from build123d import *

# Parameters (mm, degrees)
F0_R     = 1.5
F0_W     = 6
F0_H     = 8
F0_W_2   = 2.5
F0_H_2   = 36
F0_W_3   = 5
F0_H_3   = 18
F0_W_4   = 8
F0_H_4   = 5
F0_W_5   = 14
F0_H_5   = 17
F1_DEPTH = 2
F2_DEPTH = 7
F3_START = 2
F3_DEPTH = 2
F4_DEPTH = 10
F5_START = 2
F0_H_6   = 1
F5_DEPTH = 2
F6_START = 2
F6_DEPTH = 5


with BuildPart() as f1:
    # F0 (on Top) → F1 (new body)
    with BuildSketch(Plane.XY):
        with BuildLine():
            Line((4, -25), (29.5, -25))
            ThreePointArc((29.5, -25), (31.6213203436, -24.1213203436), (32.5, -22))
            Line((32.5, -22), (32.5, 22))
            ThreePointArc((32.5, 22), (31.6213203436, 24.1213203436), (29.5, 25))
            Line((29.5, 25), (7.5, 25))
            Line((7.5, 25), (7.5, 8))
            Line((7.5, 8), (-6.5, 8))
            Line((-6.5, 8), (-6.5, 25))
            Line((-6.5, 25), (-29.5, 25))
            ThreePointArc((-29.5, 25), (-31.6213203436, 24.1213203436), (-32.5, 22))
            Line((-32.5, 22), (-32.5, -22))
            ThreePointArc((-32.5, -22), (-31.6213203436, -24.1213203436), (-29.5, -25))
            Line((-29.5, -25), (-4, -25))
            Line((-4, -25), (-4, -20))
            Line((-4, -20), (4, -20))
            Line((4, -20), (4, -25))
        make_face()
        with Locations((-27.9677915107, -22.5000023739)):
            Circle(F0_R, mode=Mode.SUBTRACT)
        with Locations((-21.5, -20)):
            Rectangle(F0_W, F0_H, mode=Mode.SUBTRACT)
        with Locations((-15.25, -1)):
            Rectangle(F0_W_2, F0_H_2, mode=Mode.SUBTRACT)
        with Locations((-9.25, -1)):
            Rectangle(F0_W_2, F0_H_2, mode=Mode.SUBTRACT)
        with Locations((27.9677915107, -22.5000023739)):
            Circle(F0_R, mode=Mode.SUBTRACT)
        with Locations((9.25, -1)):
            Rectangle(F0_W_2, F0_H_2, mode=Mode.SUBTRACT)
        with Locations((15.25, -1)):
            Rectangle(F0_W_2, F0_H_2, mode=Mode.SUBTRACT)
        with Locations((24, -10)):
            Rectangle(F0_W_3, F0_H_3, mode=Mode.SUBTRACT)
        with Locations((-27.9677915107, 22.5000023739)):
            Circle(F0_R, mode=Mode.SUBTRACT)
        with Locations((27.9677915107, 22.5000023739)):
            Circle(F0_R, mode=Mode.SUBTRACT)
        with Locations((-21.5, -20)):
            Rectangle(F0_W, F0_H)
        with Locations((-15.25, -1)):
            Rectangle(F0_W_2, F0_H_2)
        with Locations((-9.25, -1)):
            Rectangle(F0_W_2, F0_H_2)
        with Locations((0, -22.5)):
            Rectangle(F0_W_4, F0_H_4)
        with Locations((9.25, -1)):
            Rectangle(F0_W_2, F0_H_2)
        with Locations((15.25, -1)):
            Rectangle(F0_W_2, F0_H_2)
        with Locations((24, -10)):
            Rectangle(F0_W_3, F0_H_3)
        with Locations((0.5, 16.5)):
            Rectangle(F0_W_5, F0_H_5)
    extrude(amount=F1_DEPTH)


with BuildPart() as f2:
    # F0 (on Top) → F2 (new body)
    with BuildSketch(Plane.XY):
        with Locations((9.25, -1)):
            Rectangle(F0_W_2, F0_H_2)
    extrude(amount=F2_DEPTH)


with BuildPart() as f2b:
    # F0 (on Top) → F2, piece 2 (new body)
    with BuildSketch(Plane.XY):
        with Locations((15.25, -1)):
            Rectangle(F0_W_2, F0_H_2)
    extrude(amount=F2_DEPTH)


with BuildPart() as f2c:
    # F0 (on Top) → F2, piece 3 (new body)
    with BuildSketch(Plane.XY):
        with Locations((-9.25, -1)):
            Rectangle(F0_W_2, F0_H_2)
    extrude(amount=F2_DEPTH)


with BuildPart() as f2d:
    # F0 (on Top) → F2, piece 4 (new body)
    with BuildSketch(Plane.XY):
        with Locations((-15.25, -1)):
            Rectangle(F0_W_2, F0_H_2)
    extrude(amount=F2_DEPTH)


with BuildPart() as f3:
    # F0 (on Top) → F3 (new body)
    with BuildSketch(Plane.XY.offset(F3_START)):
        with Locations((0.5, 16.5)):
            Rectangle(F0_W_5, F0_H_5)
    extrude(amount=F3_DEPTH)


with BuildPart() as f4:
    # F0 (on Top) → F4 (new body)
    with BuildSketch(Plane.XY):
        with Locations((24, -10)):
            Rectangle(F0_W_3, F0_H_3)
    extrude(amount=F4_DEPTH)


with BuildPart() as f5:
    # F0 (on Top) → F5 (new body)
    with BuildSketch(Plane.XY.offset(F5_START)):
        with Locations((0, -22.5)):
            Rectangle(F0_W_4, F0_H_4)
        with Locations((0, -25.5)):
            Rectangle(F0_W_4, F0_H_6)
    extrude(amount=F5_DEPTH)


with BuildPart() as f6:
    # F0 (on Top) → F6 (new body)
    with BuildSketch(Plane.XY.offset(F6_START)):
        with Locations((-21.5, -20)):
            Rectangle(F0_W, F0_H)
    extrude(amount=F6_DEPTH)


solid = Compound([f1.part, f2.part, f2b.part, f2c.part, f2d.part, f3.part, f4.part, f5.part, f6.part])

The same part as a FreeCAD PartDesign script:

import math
import FreeCAD as App
import Part
import Sketcher
Q = App.Units.Quantity

doc = App.newDocument("Part")
body = doc.addObject("PartDesign::Body", "Body")

# Sketch on XY plane
sketch1 = body.newObject("Sketcher::SketchObject", "Sketch")
sketch1.AttachmentSupport = (doc.getObject("XY_Plane"), [""])
sketch1.MapMode = "FlatFace"
sketch1.addGeometry(Part.ArcOfCircle(Part.Circle(App.Vector(29.5, -22, 0), App.Vector(0, 0, 1), 3), math.radians(-90), math.radians(0)), False)
sketch1.addGeometry(Part.LineSegment(App.Vector(32.5, -22, 0), App.Vector(32.5, 22, 0)), False)
sketch1.addGeometry(Part.ArcOfCircle(Part.Circle(App.Vector(29.5, 22, 0), App.Vector(0, 0, 1), 3), math.radians(0), math.radians(90)), False)
sketch1.addGeometry(Part.LineSegment(App.Vector(29.5, 25, 0), App.Vector(-29.5, 25, 0)), False)
sketch1.addGeometry(Part.ArcOfCircle(Part.Circle(App.Vector(-29.5, 22, 0), App.Vector(0, 0, 1), 3), math.radians(90), math.radians(180)), False)
sketch1.addGeometry(Part.LineSegment(App.Vector(-32.5, 22, 0), App.Vector(-32.5, -22, 0)), False)
sketch1.addGeometry(Part.ArcOfCircle(Part.Circle(App.Vector(-29.5, -22, 0), App.Vector(0, 0, 1), 3), math.radians(180), math.radians(270)), False)
sketch1.addGeometry(Part.LineSegment(App.Vector(-29.5, -25, 0), App.Vector(29.5, -25, 0)), False)
sketch1.addGeometry(Part.Circle(App.Vector(-28, -22.5, 0), App.Vector(0, 0, 1), 1.5), False)
sketch1.addGeometry(Part.Circle(App.Vector(28, -22.5, 0), App.Vector(0, 0, 1), 1.5), False)
sketch1.addGeometry(Part.Circle(App.Vector(-28, 22.5, 0), App.Vector(0, 0, 1), 1.5), False)
sketch1.addGeometry(Part.Circle(App.Vector(28, 22.5, 0), App.Vector(0, 0, 1), 1.5), False)
sketch1.addConstraint(Sketcher.Constraint("Tangent", 0, 2, 1, 1))
sketch1.addConstraint(Sketcher.Constraint("Tangent", 1, 2, 2, 1))
sketch1.addConstraint(Sketcher.Constraint("Tangent", 2, 2, 3, 1))
sketch1.addConstraint(Sketcher.Constraint("Tangent", 3, 2, 4, 1))
sketch1.addConstraint(Sketcher.Constraint("Tangent", 4, 2, 5, 1))
sketch1.addConstraint(Sketcher.Constraint("Tangent", 5, 2, 6, 1))
sketch1.addConstraint(Sketcher.Constraint("Tangent", 6, 2, 7, 1))
sketch1.addConstraint(Sketcher.Constraint("Tangent", 7, 2, 0, 1))
sketch1.addConstraint(Sketcher.Constraint("Vertical", 1))
sketch1.addConstraint(Sketcher.Constraint("Horizontal", 3))
sketch1.addConstraint(Sketcher.Constraint("Vertical", 5))
sketch1.addConstraint(Sketcher.Constraint("Horizontal", 7))
sketch1.addConstraint(Sketcher.Constraint("Equal", 0, 2))
sketch1.addConstraint(Sketcher.Constraint("Equal", 2, 4))
sketch1.addConstraint(Sketcher.Constraint("Equal", 4, 6))
sketch1.addConstraint(Sketcher.Constraint("Equal", 8, 9))
sketch1.addConstraint(Sketcher.Constraint("Equal", 9, 10))
sketch1.addConstraint(Sketcher.Constraint("Equal", 10, 11))
sketch1.addConstraint(Sketcher.Constraint("Symmetric", 0, 3, 4, 3, -1, 1))
sketch1.addConstraint(Sketcher.Constraint("Symmetric", 9, 3, 10, 3, -1, 1))
sketch1.addConstraint(Sketcher.Constraint("Symmetric", 8, 3, 11, 3, -1, 1))
sketch1.addConstraint(Sketcher.Constraint("Symmetric", 8, 3, 9, 3, -2))
sketch1.addConstraint(Sketcher.Constraint("Diameter", 8, Q("3 mm")))
sketch1.addConstraint(Sketcher.Constraint("Radius", 0, Q("3 mm")))
sketch1.addConstraint(Sketcher.Constraint("DistanceX", 3, 2, 3, 1, Q("59 mm")))
sketch1.addConstraint(Sketcher.Constraint("DistanceY", 1, 1, 1, 2, Q("44 mm")))
sketch1.addConstraint(Sketcher.Constraint("DistanceX", 8, 3, -1, 1, Q("27.967792 mm")))
sketch1.addConstraint(Sketcher.Constraint("DistanceY", 8, 3, -1, 1, Q("22.500002 mm")))
pad1 = body.newObject("PartDesign::Pad", "Pad")
pad1.Profile = sketch1
pad1.Length = 2
body2 = doc.addObject("PartDesign::Body", "Body001")

# Sketch on XY plane
sketch2 = body2.newObject("Sketcher::SketchObject", "Sketch001")
sketch2.AttachmentSupport = (doc.getObject("XY_Plane001"), [""])
sketch2.MapMode = "FlatFace"
sketch2.addGeometry(Part.LineSegment(App.Vector(8, 17, 0), App.Vector(8, -19, 0)), False)
sketch2.addGeometry(Part.LineSegment(App.Vector(8, -19, 0), App.Vector(10.5, -19, 0)), False)
sketch2.addGeometry(Part.LineSegment(App.Vector(10.5, -19, 0), App.Vector(10.5, 17, 0)), False)
sketch2.addGeometry(Part.LineSegment(App.Vector(10.5, 17, 0), App.Vector(8, 17, 0)), False)
sketch2.addConstraint(Sketcher.Constraint("Coincident", 0, 2, 1, 1))
sketch2.addConstraint(Sketcher.Constraint("Coincident", 1, 2, 2, 1))
sketch2.addConstraint(Sketcher.Constraint("Coincident", 2, 2, 3, 1))
sketch2.addConstraint(Sketcher.Constraint("Coincident", 3, 2, 0, 1))
sketch2.addConstraint(Sketcher.Constraint("Vertical", 0))
sketch2.addConstraint(Sketcher.Constraint("Horizontal", 1))
sketch2.addConstraint(Sketcher.Constraint("Vertical", 2))
sketch2.addConstraint(Sketcher.Constraint("Horizontal", 3))
sketch2.addConstraint(Sketcher.Constraint("DistanceY", 0, 2, 0, 1, Q("36 mm")))
sketch2.addConstraint(Sketcher.Constraint("DistanceX", 1, 1, 1, 2, Q("2.5 mm")))
sketch2.addConstraint(Sketcher.Constraint("DistanceX", -1, 1, 0, 2, Q("8 mm")))
sketch2.addConstraint(Sketcher.Constraint("DistanceY", 0, 2, -1, 1, Q("19 mm")))
pad2 = body2.newObject("PartDesign::Pad", "Pad001")
pad2.Profile = sketch2
pad2.Length = 7
body3 = doc.addObject("PartDesign::Body", "Body002")

# Sketch on XY plane
sketch3 = body3.newObject("Sketcher::SketchObject", "Sketch002")
sketch3.AttachmentSupport = (doc.getObject("XY_Plane002"), [""])
sketch3.MapMode = "FlatFace"
sketch3.addGeometry(Part.LineSegment(App.Vector(14, 17, 0), App.Vector(14, -19, 0)), False)
sketch3.addGeometry(Part.LineSegment(App.Vector(14, -19, 0), App.Vector(16.5, -19, 0)), False)
sketch3.addGeometry(Part.LineSegment(App.Vector(16.5, -19, 0), App.Vector(16.5, 17, 0)), False)
sketch3.addGeometry(Part.LineSegment(App.Vector(16.5, 17, 0), App.Vector(14, 17, 0)), False)
sketch3.addConstraint(Sketcher.Constraint("Coincident", 0, 2, 1, 1))
sketch3.addConstraint(Sketcher.Constraint("Coincident", 1, 2, 2, 1))
sketch3.addConstraint(Sketcher.Constraint("Coincident", 2, 2, 3, 1))
sketch3.addConstraint(Sketcher.Constraint("Coincident", 3, 2, 0, 1))
sketch3.addConstraint(Sketcher.Constraint("Vertical", 0))
sketch3.addConstraint(Sketcher.Constraint("Horizontal", 1))
sketch3.addConstraint(Sketcher.Constraint("Vertical", 2))
sketch3.addConstraint(Sketcher.Constraint("Horizontal", 3))
sketch3.addConstraint(Sketcher.Constraint("DistanceY", 0, 2, 0, 1, Q("36 mm")))
sketch3.addConstraint(Sketcher.Constraint("DistanceX", 1, 1, 1, 2, Q("2.5 mm")))
sketch3.addConstraint(Sketcher.Constraint("DistanceX", -1, 1, 0, 2, Q("14 mm")))
sketch3.addConstraint(Sketcher.Constraint("DistanceY", 0, 2, -1, 1, Q("19 mm")))
pad3 = body3.newObject("PartDesign::Pad", "Pad002")
pad3.Profile = sketch3
pad3.Length = 7
body4 = doc.addObject("PartDesign::Body", "Body003")

# Sketch on XY plane
sketch4 = body4.newObject("Sketcher::SketchObject", "Sketch003")
sketch4.AttachmentSupport = (doc.getObject("XY_Plane003"), [""])
sketch4.MapMode = "FlatFace"
sketch4.addGeometry(Part.LineSegment(App.Vector(-10.5, 17, 0), App.Vector(-10.5, -19, 0)), False)
sketch4.addGeometry(Part.LineSegment(App.Vector(-10.5, -19, 0), App.Vector(-8, -19, 0)), False)
sketch4.addGeometry(Part.LineSegment(App.Vector(-8, -19, 0), App.Vector(-8, 17, 0)), False)
sketch4.addGeometry(Part.LineSegment(App.Vector(-8, 17, 0), App.Vector(-10.5, 17, 0)), False)
sketch4.addConstraint(Sketcher.Constraint("Coincident", 0, 2, 1, 1))
sketch4.addConstraint(Sketcher.Constraint("Coincident", 1, 2, 2, 1))
sketch4.addConstraint(Sketcher.Constraint("Coincident", 2, 2, 3, 1))
sketch4.addConstraint(Sketcher.Constraint("Coincident", 3, 2, 0, 1))
sketch4.addConstraint(Sketcher.Constraint("Vertical", 0))
sketch4.addConstraint(Sketcher.Constraint("Horizontal", 1))
sketch4.addConstraint(Sketcher.Constraint("Vertical", 2))
sketch4.addConstraint(Sketcher.Constraint("Horizontal", 3))
sketch4.addConstraint(Sketcher.Constraint("DistanceY", 0, 2, 0, 1, Q("36 mm")))
sketch4.addConstraint(Sketcher.Constraint("DistanceX", 1, 1, 1, 2, Q("2.5 mm")))
sketch4.addConstraint(Sketcher.Constraint("DistanceY", 0, 2, -1, 1, Q("19 mm")))
sketch4.addConstraint(Sketcher.Constraint("DistanceX", 1, 2, -1, 1, Q("8 mm")))
pad4 = body4.newObject("PartDesign::Pad", "Pad003")
pad4.Profile = sketch4
pad4.Length = 7
body5 = doc.addObject("PartDesign::Body", "Body004")

# Sketch on XY plane
sketch5 = body5.newObject("Sketcher::SketchObject", "Sketch004")
sketch5.AttachmentSupport = (doc.getObject("XY_Plane004"), [""])
sketch5.MapMode = "FlatFace"
sketch5.addGeometry(Part.LineSegment(App.Vector(-16.5, 17, 0), App.Vector(-16.5, -19, 0)), False)
sketch5.addGeometry(Part.LineSegment(App.Vector(-16.5, -19, 0), App.Vector(-14, -19, 0)), False)
sketch5.addGeometry(Part.LineSegment(App.Vector(-14, -19, 0), App.Vector(-14, 17, 0)), False)
sketch5.addGeometry(Part.LineSegment(App.Vector(-14, 17, 0), App.Vector(-16.5, 17, 0)), False)
sketch5.addConstraint(Sketcher.Constraint("Coincident", 0, 2, 1, 1))
sketch5.addConstraint(Sketcher.Constraint("Coincident", 1, 2, 2, 1))
sketch5.addConstraint(Sketcher.Constraint("Coincident", 2, 2, 3, 1))
sketch5.addConstraint(Sketcher.Constraint("Coincident", 3, 2, 0, 1))
sketch5.addConstraint(Sketcher.Constraint("Vertical", 0))
sketch5.addConstraint(Sketcher.Constraint("Horizontal", 1))
sketch5.addConstraint(Sketcher.Constraint("Vertical", 2))
sketch5.addConstraint(Sketcher.Constraint("Horizontal", 3))
sketch5.addConstraint(Sketcher.Constraint("DistanceY", 0, 2, 0, 1, Q("36 mm")))
sketch5.addConstraint(Sketcher.Constraint("DistanceX", 1, 1, 1, 2, Q("2.5 mm")))
sketch5.addConstraint(Sketcher.Constraint("DistanceY", 0, 2, -1, 1, Q("19 mm")))
sketch5.addConstraint(Sketcher.Constraint("DistanceX", 1, 2, -1, 1, Q("14 mm")))
pad5 = body5.newObject("PartDesign::Pad", "Pad004")
pad5.Profile = sketch5
pad5.Length = 7
body6 = doc.addObject("PartDesign::Body", "Body005")

# Sketch on XY plane
sketch6 = body6.newObject("Sketcher::SketchObject", "Sketch005")
sketch6.AttachmentSupport = (doc.getObject("XY_Plane005"), [""])
sketch6.MapMode = "FlatFace"
sketch6.AttachmentOffset = App.Placement(App.Vector(0, 0, 2), App.Rotation())
sketch6.addGeometry(Part.LineSegment(App.Vector(-6, 25, 0), App.Vector(-6, 8, 0)), False)
sketch6.addGeometry(Part.LineSegment(App.Vector(-6, 8, 0), App.Vector(8, 8, 0)), False)
sketch6.addGeometry(Part.LineSegment(App.Vector(8, 8, 0), App.Vector(8, 25, 0)), False)
sketch6.addGeometry(Part.LineSegment(App.Vector(8, 25, 0), App.Vector(-6, 25, 0)), False)
sketch6.addConstraint(Sketcher.Constraint("Coincident", 0, 2, 1, 1))
sketch6.addConstraint(Sketcher.Constraint("Coincident", 1, 2, 2, 1))
sketch6.addConstraint(Sketcher.Constraint("Coincident", 2, 2, 3, 1))
sketch6.addConstraint(Sketcher.Constraint("Coincident", 3, 2, 0, 1))
sketch6.addConstraint(Sketcher.Constraint("Vertical", 0))
sketch6.addConstraint(Sketcher.Constraint("Horizontal", 1))
sketch6.addConstraint(Sketcher.Constraint("Vertical", 2))
sketch6.addConstraint(Sketcher.Constraint("Horizontal", 3))
sketch6.addConstraint(Sketcher.Constraint("DistanceX", 1, 1, 1, 2, Q("14 mm")))
sketch6.addConstraint(Sketcher.Constraint("DistanceY", 0, 2, 0, 1, Q("17 mm")))
sketch6.addConstraint(Sketcher.Constraint("DistanceY", -1, 1, 0, 2, Q("8 mm")))
sketch6.addConstraint(Sketcher.Constraint("DistanceX", 0, 2, -1, 1, Q("6.5 mm")))
pad6 = body6.newObject("PartDesign::Pad", "Pad005")
pad6.Profile = sketch6
pad6.Length = 2
body7 = doc.addObject("PartDesign::Body", "Body006")

# Sketch on XY plane
sketch7 = body7.newObject("Sketcher::SketchObject", "Sketch006")
sketch7.AttachmentSupport = (doc.getObject("XY_Plane006"), [""])
sketch7.MapMode = "FlatFace"
sketch7.addGeometry(Part.LineSegment(App.Vector(22, -1, 0), App.Vector(22, -19, 0)), False)
sketch7.addGeometry(Part.LineSegment(App.Vector(22, -19, 0), App.Vector(26, -19, 0)), False)
sketch7.addGeometry(Part.LineSegment(App.Vector(26, -19, 0), App.Vector(26, -1, 0)), False)
sketch7.addGeometry(Part.LineSegment(App.Vector(26, -1, 0), App.Vector(22, -1, 0)), False)
sketch7.addConstraint(Sketcher.Constraint("Coincident", 0, 2, 1, 1))
sketch7.addConstraint(Sketcher.Constraint("Coincident", 1, 2, 2, 1))
sketch7.addConstraint(Sketcher.Constraint("Coincident", 2, 2, 3, 1))
sketch7.addConstraint(Sketcher.Constraint("Coincident", 3, 2, 0, 1))
sketch7.addConstraint(Sketcher.Constraint("Vertical", 0))
sketch7.addConstraint(Sketcher.Constraint("Horizontal", 1))
sketch7.addConstraint(Sketcher.Constraint("Vertical", 2))
sketch7.addConstraint(Sketcher.Constraint("Horizontal", 3))
sketch7.addConstraint(Sketcher.Constraint("DistanceX", 1, 1, 1, 2, Q("5 mm")))
sketch7.addConstraint(Sketcher.Constraint("DistanceY", 0, 2, 0, 1, Q("18 mm")))
sketch7.addConstraint(Sketcher.Constraint("DistanceY", 0, 2, -1, 1, Q("19 mm")))
sketch7.addConstraint(Sketcher.Constraint("DistanceX", -1, 1, 0, 2, Q("21.5 mm")))
pad7 = body7.newObject("PartDesign::Pad", "Pad006")
pad7.Profile = sketch7
pad7.Length = 10
body8 = doc.addObject("PartDesign::Body", "Body007")

# Sketch on XY plane
sketch8 = body8.newObject("Sketcher::SketchObject", "Sketch007")
sketch8.AttachmentSupport = (doc.getObject("XY_Plane007"), [""])
sketch8.MapMode = "FlatFace"
sketch8.AttachmentOffset = App.Placement(App.Vector(0, 0, 2), App.Rotation())
sketch8.addGeometry(Part.LineSegment(App.Vector(-4, -20, 0), App.Vector(-4, -26, 0)), False)
sketch8.addGeometry(Part.LineSegment(App.Vector(-4, -26, 0), App.Vector(4, -26, 0)), False)
sketch8.addGeometry(Part.LineSegment(App.Vector(4, -26, 0), App.Vector(4, -20, 0)), False)
sketch8.addGeometry(Part.LineSegment(App.Vector(4, -20, 0), App.Vector(-4, -20, 0)), False)
sketch8.addConstraint(Sketcher.Constraint("Coincident", 0, 2, 1, 1))
sketch8.addConstraint(Sketcher.Constraint("Coincident", 1, 2, 2, 1))
sketch8.addConstraint(Sketcher.Constraint("Coincident", 2, 2, 3, 1))
sketch8.addConstraint(Sketcher.Constraint("Coincident", 3, 2, 0, 1))
sketch8.addConstraint(Sketcher.Constraint("Vertical", 0))
sketch8.addConstraint(Sketcher.Constraint("Horizontal", 1))
sketch8.addConstraint(Sketcher.Constraint("Vertical", 2))
sketch8.addConstraint(Sketcher.Constraint("Horizontal", 3))
sketch8.addConstraint(Sketcher.Constraint("DistanceX", 1, 1, 1, 2, Q("8 mm")))
sketch8.addConstraint(Sketcher.Constraint("DistanceY", 0, 2, 0, 1, Q("6 mm")))
sketch8.addConstraint(Sketcher.Constraint("DistanceX", 0, 2, -1, 1, Q("4 mm")))
sketch8.addConstraint(Sketcher.Constraint("DistanceY", 0, 2, -1, 1, Q("26 mm")))
pad8 = body8.newObject("PartDesign::Pad", "Pad007")
pad8.Profile = sketch8
pad8.Length = 2
body9 = doc.addObject("PartDesign::Body", "Body008")

# Sketch on XY plane
sketch9 = body9.newObject("Sketcher::SketchObject", "Sketch008")
sketch9.AttachmentSupport = (doc.getObject("XY_Plane008"), [""])
sketch9.MapMode = "FlatFace"
sketch9.AttachmentOffset = App.Placement(App.Vector(0, 0, 2), App.Rotation())
sketch9.addGeometry(Part.LineSegment(App.Vector(-24, -16, 0), App.Vector(-24, -24, 0)), False)
sketch9.addGeometry(Part.LineSegment(App.Vector(-24, -24, 0), App.Vector(-18, -24, 0)), False)
sketch9.addGeometry(Part.LineSegment(App.Vector(-18, -24, 0), App.Vector(-18, -16, 0)), False)
sketch9.addGeometry(Part.LineSegment(App.Vector(-18, -16, 0), App.Vector(-24, -16, 0)), False)
sketch9.addConstraint(Sketcher.Constraint("Coincident", 0, 2, 1, 1))
sketch9.addConstraint(Sketcher.Constraint("Coincident", 1, 2, 2, 1))
sketch9.addConstraint(Sketcher.Constraint("Coincident", 2, 2, 3, 1))
sketch9.addConstraint(Sketcher.Constraint("Coincident", 3, 2, 0, 1))
sketch9.addConstraint(Sketcher.Constraint("Vertical", 0))
sketch9.addConstraint(Sketcher.Constraint("Horizontal", 1))
sketch9.addConstraint(Sketcher.Constraint("Vertical", 2))
sketch9.addConstraint(Sketcher.Constraint("Horizontal", 3))
sketch9.addConstraint(Sketcher.Constraint("DistanceX", 1, 1, 1, 2, Q("6 mm")))
sketch9.addConstraint(Sketcher.Constraint("DistanceY", 0, 2, 0, 1, Q("8 mm")))
sketch9.addConstraint(Sketcher.Constraint("DistanceY", 0, 2, -1, 1, Q("24 mm")))
sketch9.addConstraint(Sketcher.Constraint("DistanceX", 0, 2, -1, 1, Q("24.5 mm")))
pad9 = body9.newObject("PartDesign::Pad", "Pad008")
pad9.Profile = sketch9
pad9.Length = 5

doc.recompute()
